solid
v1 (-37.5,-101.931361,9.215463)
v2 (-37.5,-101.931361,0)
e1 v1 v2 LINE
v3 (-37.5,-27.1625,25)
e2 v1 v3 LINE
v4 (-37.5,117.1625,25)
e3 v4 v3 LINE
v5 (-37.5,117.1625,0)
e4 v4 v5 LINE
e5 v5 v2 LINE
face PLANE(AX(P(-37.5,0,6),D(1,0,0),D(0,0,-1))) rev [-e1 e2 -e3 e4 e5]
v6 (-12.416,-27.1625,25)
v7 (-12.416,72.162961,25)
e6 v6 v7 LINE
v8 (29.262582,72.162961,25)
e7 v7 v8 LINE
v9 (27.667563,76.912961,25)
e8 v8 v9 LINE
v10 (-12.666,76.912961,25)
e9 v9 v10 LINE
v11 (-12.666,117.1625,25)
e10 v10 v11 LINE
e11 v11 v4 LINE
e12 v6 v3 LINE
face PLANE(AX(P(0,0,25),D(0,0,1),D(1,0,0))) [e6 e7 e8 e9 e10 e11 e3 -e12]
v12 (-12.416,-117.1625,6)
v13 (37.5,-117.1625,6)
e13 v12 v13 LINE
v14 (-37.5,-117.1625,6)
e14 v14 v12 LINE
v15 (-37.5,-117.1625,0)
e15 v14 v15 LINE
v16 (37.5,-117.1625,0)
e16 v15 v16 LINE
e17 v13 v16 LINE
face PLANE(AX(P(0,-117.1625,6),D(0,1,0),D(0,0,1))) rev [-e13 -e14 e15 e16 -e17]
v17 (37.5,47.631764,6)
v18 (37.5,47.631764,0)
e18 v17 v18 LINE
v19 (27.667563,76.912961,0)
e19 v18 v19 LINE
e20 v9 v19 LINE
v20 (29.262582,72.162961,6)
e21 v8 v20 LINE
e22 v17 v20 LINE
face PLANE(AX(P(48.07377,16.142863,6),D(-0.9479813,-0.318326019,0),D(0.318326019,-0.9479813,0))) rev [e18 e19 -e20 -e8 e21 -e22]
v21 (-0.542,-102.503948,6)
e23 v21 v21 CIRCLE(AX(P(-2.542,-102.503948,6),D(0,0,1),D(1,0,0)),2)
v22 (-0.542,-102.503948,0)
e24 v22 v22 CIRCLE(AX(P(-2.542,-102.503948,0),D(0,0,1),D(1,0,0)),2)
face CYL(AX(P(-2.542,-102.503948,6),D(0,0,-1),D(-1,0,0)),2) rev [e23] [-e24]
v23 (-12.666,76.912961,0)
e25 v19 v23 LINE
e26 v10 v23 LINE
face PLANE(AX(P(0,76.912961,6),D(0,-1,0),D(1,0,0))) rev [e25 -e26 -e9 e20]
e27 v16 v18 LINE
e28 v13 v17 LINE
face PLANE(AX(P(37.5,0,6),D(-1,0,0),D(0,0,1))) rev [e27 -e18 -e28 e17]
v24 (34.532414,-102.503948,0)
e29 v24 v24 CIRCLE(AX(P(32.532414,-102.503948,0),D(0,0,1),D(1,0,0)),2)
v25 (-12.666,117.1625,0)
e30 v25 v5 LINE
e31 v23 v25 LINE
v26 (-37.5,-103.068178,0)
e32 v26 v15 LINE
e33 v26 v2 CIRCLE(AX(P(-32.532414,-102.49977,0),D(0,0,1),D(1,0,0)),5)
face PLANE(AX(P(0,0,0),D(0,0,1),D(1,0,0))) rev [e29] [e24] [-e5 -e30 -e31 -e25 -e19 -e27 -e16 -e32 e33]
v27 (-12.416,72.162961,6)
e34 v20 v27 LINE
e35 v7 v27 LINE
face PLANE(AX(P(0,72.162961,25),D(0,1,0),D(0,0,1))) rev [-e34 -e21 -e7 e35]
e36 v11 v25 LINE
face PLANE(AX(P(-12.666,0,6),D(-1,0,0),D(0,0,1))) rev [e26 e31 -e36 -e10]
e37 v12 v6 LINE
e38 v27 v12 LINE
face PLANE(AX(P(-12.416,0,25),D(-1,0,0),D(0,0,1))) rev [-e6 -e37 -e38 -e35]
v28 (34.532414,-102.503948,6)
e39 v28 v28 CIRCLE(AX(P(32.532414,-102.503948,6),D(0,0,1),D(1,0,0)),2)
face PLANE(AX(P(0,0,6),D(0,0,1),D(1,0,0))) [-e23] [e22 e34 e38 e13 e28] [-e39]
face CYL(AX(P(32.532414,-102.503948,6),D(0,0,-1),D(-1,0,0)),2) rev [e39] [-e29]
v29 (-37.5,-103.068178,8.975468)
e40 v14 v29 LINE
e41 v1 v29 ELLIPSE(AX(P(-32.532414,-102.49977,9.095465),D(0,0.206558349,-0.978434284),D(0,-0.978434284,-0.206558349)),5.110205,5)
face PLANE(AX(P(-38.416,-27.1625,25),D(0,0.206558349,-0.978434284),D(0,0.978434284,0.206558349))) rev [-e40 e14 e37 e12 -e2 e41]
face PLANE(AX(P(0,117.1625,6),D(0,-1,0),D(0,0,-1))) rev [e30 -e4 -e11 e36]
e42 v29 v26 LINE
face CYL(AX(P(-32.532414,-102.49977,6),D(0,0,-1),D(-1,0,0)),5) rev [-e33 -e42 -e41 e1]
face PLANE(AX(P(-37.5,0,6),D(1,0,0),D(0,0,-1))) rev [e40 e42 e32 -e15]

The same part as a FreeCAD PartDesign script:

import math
import FreeCAD as App
import Part
import Sketcher
from FreeCAD import Vector

doc = App.newDocument("Part")
body = doc.addObject("PartDesign::Body", "Body")

sketch1 = body.newObject("Sketcher::SketchObject", "Sketch")
sketch1.AttachmentSupport = (doc.getObject("XY_Plane"), [""])
sketch1.MapMode = "FlatFace"
sketch1.addGeometry(Part.LineSegment(Vector(-37.5, 117.2, 0), Vector(-37.5, -101.9, 0)), False)
sketch1.addGeometry(Part.ArcOfCircle(Part.Circle(Vector(-32.5, -102.5, 0), Vector(0, 0, 1), 5), math.radians(-173), math.radians(173)), False)
sketch1.addGeometry(Part.LineSegment(Vector(-37.5, -103.1, 0), Vector(-37.5, -117.2, 0)), False)
sketch1.addGeometry(Part.LineSegment(Vector(-37.5, -117.2, 0), Vector(37.5, -117.2, 0)), False)
sketch1.addGeometry(Part.LineSegment(Vector(37.5, -117.2, 0), Vector(37.5, 47.6, 0)), False)
sketch1.addGeometry(Part.LineSegment(Vector(37.5, 47.6, 0), Vector(29.3, 72.2, 0)), False)
sketch1.addGeometry(Part.LineSegment(Vector(29.3, 72.2, 0), Vector(27.7, 76.9, 0)), False)
sketch1.addGeometry(Part.LineSegment(Vector(27.7, 76.9, 0), Vector(-12.7, 76.9, 0)), False)
sketch1.addGeometry(Part.LineSegment(Vector(-12.7, 76.9, 0), Vector(-12.7, 117.2, 0)), False)
sketch1.addGeometry(Part.LineSegment(Vector(-12.7, 117.2, 0), Vector(-37.5, 117.2, 0)), False)
sketch1.addGeometry(Part.Circle(Vector(32.5, -102.5, 0), Vector(0, 0, 1), 2), False)
sketch1.addGeometry(Part.Circle(Vector(-2.5, -102.5, 0), Vector(0, 0, 1), 2), False)
sketch1.addConstraint(Sketcher.Constraint("Coincident", 0, 2, 1, 2))
sketch1.addConstraint(Sketcher.Constraint("Coincident", 1, 1, 2, 1))
sketch1.addConstraint(Sketcher.Constraint("Coincident", 2, 2, 3, 1))
sketch1.addConstraint(Sketcher.Constraint("Coincident", 3, 2, 4, 1))
sketch1.addConstraint(Sketcher.Constraint("Coincident", 4, 2, 5, 1))
sketch1.addConstraint(Sketcher.Constraint("Coincident", 5, 2, 6, 1))
sketch1.addConstraint(Sketcher.Constraint("Coincident", 6, 2, 7, 1))
sketch1.addConstraint(Sketcher.Constraint("Coincident", 7, 2, 8, 1))
sketch1.addConstraint(Sketcher.Constraint("Coincident", 8, 2, 9, 1))
sketch1.addConstraint(Sketcher.Constraint("Coincident", 9, 2, 0, 1))
sketch1.addConstraint(Sketcher.Constraint("Vertical", 0))
sketch1.addConstraint(Sketcher.Constraint("Vertical", 2))
sketch1.addConstraint(Sketcher.Constraint("Horizontal", 3))
sketch1.addConstraint(Sketcher.Constraint("Vertical", 4))
sketch1.addConstraint(Sketcher.Constraint("Horizontal", 7))
sketch1.addConstraint(Sketcher.Constraint("Vertical", 8))
sketch1.addConstraint(Sketcher.Constraint("Horizontal", 9))
sketch1.addConstraint(Sketcher.Constraint("Equal", 10, 11))
sketch1.addConstraint(Sketcher.Constraint("Symmetric", 3, 2, 9, 2, -1, 1))
sketch1.addConstraint(Sketcher.Constraint("Parallel", 5, 6))
sketch1.addConstraint(Sketcher.Constraint("Horizontal", 10, 3, 11, 3))
sketch1.addConstraint(Sketcher.Constraint("Vertical", 0, 2, 1, 1))
sketch1.addConstraint(Sketcher.Constraint("Diameter", 10, 4.0))
sketch1.addConstraint(Sketcher.Constraint("Radius", 1, 5.0))
sketch1.addConstraint(Sketcher.Constraint("DistanceX", 3, 1, 3, 2, 75.0))
sketch1.addConstraint(Sketcher.Constraint("DistanceX", 9, 2, 9, 1, 24.834))
sketch1.addConstraint(Sketcher.Constraint("DistanceY", 5, 2, 6, 2, 4.75))
sketch1.addConstraint(Sketcher.Constraint("DistanceX", 11, 3, -1, 1, 2.542))
sketch1.addConstraint(Sketcher.Constraint("Distance", 5, 25.8773))
sketch1.addConstraint(Sketcher.Constraint("DistanceY", 0, 2, 0, 1, 219.093861))
sketch1.addConstraint(Sketcher.Constraint("DistanceY", 2, 2, 2, 1, 14.094322))
sketch1.addConstraint(Sketcher.Constraint("DistanceY", 8, 1, 8, 2, 40.249539))
sketch1.addConstraint(Sketcher.Constraint("DistanceY", 2, 2, -1, 1, 117.1625))
sketch1.addConstraint(Sketcher.Constraint("DistanceX", 7, 2, 7, 1, 40.333563))
sketch1.addConstraint(Sketcher.Constraint("DistanceY", 10, 3, 1, 3, 0.004178))
sketch1.addConstraint(Sketcher.Constraint("DistanceX", 5, 2, 10, 3, 3.269832))
pad1 = body.newObject("PartDesign::Pad", "Pad")
pad1.Profile = sketch1
pad1.Length = 6

sketch2 = body.newObject("Sketcher::SketchObject", "Sketch001")
sketch2.AttachmentSupport = (doc.getObject("XY_Plane"), [""])
sketch2.MapMode = "FlatFace"
sketch2.addGeometry(Part.LineSegment(Vector(-37.5, 117.2, 0), Vector(-37.5, -101.9, 0)), False)
sketch2.addGeometry(Part.ArcOfCircle(Part.Circle(Vector(-32.5, -102.5, 0), Vector(0, 0, 1), 5), math.radians(-173), math.radians(173)), False)
sketch2.addGeometry(Part.LineSegment(Vector(-37.5, -103.1, 0), Vector(-37.5, -117.2, 0)), False)
sketch2.addGeometry(Part.LineSegment(Vector(-37.5, -117.2, 0), Vector(-12.4, -117.2, 0)), False)
sketch2.addGeometry(Part.LineSegment(Vector(-12.4, -117.2, 0), Vector(-12.4, 72.2, 0)), False)
sketch2.addGeometry(Part.LineSegment(Vector(-12.4, 72.2, 0), Vector(29.3, 72.2, 0)), False)
sketch2.addGeometry(Part.LineSegment(Vector(29.3, 72.2, 0), Vector(27.7, 76.9, 0)), False)
sketch2.addGeometry(Part.LineSegment(Vector(27.7, 76.9, 0), Vector(-12.7, 76.9, 0)), False)
sketch2.addGeometry(Part.LineSegment(Vector(-12.7, 76.9, 0), Vector(-12.7, 117.2, 0)), False)
sketch2.addGeometry(Part.LineSegment(Vector(-12.7, 117.2, 0), Vector(-37.5, 117.2, 0)), False)
sketch2.addConstraint(Sketcher.Constraint("Coincident", 0, 2, 1, 2))
sketch2.addConstraint(Sketcher.Constraint("Coincident", 1, 1, 2, 1))
sketch2.addConstraint(Sketcher.Constraint("Coincident", 2, 2, 3, 1))
sketch2.addConstraint(Sketcher.Constraint("Coincident", 3, 2, 4, 1))
sketch2.addConstraint(Sketcher.Constraint("Coincident", 4, 2, 5, 1))
sketch2.addConstraint(Sketcher.Constraint("Coincident", 5, 2, 6, 1))
sketch2.addConstraint(Sketcher.Constraint("Coincident", 6, 2, 7, 1))
sketch2.addConstraint(Sketcher.Constraint("Coincident", 7, 2, 8, 1))
sketch2.addConstraint(Sketcher.Constraint("Coincident", 8, 2, 9, 1))
sketch2.addConstraint(Sketcher.Constraint("Coincident", 9, 2, 0, 1))
sketch2.addConstraint(Sketcher.Constraint("Vertical", 0))
sketch2.addConstraint(Sketcher.Constraint("Vertical", 2))
sketch2.addConstraint(Sketcher.Constraint("Horizontal", 3))
sketch2.addConstraint(Sketcher.Constraint("Vertical", 4))
sketch2.addConstraint(Sketcher.Constraint("Horizontal", 5))
sketch2.addConstraint(Sketcher.Constraint("Horizontal", 7))
sketch2.addConstraint(Sketcher.Constraint("Vertical", 8))
sketch2.addConstraint(Sketcher.Constraint("Horizontal", 9))
sketch2.addConstraint(Sketcher.Constraint("Symmetric", 2, 2, 9, 2, -1))
sketch2.addConstraint(Sketcher.Constraint("Radius", 1, 5.0))
sketch2.addConstraint(Sketcher.Constraint("DistanceX", 0, 2, -1, 1, 37.5))
sketch2.addConstraint(Sketcher.Constraint("DistanceX", 3, 1, 3, 2, 25.084))
sketch2.addConstraint(Sketcher.Constraint("DistanceX", 9, 2, 9, 1, 24.834))
sketch2.addConstraint(Sketcher.Constraint("DistanceY", 5, 2, 6, 2, 4.75))
sketch2.addConstraint(Sketcher.Constraint("DistanceX", 5, 1, 5, 2, 41.678582))
sketch2.addConstraint(Sketcher.Constraint("DistanceY", 0, 2, 0, 1, 219.093861))
sketch2.addConstraint(Sketcher.Constraint("DistanceY", 2, 2, 2, 1, 14.094322))
sketch2.addConstraint(Sketcher.Constraint("DistanceY", 4, 1, 4, 2, 189.325461))
sketch2.addConstraint(Sketcher.Constraint("DistanceY", 8, 1, 8, 2, 40.249539))
sketch2.addConstraint(Sketcher.Constraint("DistanceX", 7, 2, 7, 1, 40.333563))
pad2 = body.newObject("PartDesign::Pad", "Pad001")
pad2.Profile = sketch2
pad2.Length = 25

sketch3 = body.newObject("Sketcher::SketchObject", "Sketch002")
sketch3.AttachmentSupport = (doc.getObject("YZ_Plane"), [""])
sketch3.MapMode = "FlatFace"
sketch3.AttachmentOffset = App.Placement(Vector(0, 0, -12.416), App.Rotation())
sketch3.addGeometry(Part.LineSegment(Vector(-117, 6, 0), Vector(-27, 25, 0)), False)
sketch3.addGeometry(Part.LineSegment(Vector(-27, 25, 0), Vector(-117, 25, 0)), False)
sketch3.addGeometry(Part.LineSegment(Vector(-117, 25, 0), Vector(-117, 6, 0)), False)
sketch3.addConstraint(Sketcher.Constraint("Coincident", 0, 2, 1, 1))
sketch3.addConstraint(Sketcher.Constraint("Coincident", 1, 2, 2, 1))
sketch3.addConstraint(Sketcher.Constraint("Coincident", 2, 2, 0, 1))
sketch3.addConstraint(Sketcher.Constraint("Horizontal", 1))
sketch3.addConstraint(Sketcher.Constraint("Vertical", 2))
sketch3.addConstraint(Sketcher.Constraint("DistanceX", 1, 2, 1, 1, 90.0))
sketch3.addConstraint(Sketcher.Constraint("DistanceY", 2, 2, 2, 1, 19.0))
sketch3.addConstraint(Sketcher.Constraint("DistanceY", -1, 1, 0, 2, 25.0))
sketch3.addConstraint(Sketcher.Constraint("DistanceX", 0, 2, -1, 1, 27.1625))
pocket1 = body.newObject("PartDesign::Pocket", "Pocket")
pocket1.Profile = sketch3
pocket1.Length = 26

doc.recompute()
